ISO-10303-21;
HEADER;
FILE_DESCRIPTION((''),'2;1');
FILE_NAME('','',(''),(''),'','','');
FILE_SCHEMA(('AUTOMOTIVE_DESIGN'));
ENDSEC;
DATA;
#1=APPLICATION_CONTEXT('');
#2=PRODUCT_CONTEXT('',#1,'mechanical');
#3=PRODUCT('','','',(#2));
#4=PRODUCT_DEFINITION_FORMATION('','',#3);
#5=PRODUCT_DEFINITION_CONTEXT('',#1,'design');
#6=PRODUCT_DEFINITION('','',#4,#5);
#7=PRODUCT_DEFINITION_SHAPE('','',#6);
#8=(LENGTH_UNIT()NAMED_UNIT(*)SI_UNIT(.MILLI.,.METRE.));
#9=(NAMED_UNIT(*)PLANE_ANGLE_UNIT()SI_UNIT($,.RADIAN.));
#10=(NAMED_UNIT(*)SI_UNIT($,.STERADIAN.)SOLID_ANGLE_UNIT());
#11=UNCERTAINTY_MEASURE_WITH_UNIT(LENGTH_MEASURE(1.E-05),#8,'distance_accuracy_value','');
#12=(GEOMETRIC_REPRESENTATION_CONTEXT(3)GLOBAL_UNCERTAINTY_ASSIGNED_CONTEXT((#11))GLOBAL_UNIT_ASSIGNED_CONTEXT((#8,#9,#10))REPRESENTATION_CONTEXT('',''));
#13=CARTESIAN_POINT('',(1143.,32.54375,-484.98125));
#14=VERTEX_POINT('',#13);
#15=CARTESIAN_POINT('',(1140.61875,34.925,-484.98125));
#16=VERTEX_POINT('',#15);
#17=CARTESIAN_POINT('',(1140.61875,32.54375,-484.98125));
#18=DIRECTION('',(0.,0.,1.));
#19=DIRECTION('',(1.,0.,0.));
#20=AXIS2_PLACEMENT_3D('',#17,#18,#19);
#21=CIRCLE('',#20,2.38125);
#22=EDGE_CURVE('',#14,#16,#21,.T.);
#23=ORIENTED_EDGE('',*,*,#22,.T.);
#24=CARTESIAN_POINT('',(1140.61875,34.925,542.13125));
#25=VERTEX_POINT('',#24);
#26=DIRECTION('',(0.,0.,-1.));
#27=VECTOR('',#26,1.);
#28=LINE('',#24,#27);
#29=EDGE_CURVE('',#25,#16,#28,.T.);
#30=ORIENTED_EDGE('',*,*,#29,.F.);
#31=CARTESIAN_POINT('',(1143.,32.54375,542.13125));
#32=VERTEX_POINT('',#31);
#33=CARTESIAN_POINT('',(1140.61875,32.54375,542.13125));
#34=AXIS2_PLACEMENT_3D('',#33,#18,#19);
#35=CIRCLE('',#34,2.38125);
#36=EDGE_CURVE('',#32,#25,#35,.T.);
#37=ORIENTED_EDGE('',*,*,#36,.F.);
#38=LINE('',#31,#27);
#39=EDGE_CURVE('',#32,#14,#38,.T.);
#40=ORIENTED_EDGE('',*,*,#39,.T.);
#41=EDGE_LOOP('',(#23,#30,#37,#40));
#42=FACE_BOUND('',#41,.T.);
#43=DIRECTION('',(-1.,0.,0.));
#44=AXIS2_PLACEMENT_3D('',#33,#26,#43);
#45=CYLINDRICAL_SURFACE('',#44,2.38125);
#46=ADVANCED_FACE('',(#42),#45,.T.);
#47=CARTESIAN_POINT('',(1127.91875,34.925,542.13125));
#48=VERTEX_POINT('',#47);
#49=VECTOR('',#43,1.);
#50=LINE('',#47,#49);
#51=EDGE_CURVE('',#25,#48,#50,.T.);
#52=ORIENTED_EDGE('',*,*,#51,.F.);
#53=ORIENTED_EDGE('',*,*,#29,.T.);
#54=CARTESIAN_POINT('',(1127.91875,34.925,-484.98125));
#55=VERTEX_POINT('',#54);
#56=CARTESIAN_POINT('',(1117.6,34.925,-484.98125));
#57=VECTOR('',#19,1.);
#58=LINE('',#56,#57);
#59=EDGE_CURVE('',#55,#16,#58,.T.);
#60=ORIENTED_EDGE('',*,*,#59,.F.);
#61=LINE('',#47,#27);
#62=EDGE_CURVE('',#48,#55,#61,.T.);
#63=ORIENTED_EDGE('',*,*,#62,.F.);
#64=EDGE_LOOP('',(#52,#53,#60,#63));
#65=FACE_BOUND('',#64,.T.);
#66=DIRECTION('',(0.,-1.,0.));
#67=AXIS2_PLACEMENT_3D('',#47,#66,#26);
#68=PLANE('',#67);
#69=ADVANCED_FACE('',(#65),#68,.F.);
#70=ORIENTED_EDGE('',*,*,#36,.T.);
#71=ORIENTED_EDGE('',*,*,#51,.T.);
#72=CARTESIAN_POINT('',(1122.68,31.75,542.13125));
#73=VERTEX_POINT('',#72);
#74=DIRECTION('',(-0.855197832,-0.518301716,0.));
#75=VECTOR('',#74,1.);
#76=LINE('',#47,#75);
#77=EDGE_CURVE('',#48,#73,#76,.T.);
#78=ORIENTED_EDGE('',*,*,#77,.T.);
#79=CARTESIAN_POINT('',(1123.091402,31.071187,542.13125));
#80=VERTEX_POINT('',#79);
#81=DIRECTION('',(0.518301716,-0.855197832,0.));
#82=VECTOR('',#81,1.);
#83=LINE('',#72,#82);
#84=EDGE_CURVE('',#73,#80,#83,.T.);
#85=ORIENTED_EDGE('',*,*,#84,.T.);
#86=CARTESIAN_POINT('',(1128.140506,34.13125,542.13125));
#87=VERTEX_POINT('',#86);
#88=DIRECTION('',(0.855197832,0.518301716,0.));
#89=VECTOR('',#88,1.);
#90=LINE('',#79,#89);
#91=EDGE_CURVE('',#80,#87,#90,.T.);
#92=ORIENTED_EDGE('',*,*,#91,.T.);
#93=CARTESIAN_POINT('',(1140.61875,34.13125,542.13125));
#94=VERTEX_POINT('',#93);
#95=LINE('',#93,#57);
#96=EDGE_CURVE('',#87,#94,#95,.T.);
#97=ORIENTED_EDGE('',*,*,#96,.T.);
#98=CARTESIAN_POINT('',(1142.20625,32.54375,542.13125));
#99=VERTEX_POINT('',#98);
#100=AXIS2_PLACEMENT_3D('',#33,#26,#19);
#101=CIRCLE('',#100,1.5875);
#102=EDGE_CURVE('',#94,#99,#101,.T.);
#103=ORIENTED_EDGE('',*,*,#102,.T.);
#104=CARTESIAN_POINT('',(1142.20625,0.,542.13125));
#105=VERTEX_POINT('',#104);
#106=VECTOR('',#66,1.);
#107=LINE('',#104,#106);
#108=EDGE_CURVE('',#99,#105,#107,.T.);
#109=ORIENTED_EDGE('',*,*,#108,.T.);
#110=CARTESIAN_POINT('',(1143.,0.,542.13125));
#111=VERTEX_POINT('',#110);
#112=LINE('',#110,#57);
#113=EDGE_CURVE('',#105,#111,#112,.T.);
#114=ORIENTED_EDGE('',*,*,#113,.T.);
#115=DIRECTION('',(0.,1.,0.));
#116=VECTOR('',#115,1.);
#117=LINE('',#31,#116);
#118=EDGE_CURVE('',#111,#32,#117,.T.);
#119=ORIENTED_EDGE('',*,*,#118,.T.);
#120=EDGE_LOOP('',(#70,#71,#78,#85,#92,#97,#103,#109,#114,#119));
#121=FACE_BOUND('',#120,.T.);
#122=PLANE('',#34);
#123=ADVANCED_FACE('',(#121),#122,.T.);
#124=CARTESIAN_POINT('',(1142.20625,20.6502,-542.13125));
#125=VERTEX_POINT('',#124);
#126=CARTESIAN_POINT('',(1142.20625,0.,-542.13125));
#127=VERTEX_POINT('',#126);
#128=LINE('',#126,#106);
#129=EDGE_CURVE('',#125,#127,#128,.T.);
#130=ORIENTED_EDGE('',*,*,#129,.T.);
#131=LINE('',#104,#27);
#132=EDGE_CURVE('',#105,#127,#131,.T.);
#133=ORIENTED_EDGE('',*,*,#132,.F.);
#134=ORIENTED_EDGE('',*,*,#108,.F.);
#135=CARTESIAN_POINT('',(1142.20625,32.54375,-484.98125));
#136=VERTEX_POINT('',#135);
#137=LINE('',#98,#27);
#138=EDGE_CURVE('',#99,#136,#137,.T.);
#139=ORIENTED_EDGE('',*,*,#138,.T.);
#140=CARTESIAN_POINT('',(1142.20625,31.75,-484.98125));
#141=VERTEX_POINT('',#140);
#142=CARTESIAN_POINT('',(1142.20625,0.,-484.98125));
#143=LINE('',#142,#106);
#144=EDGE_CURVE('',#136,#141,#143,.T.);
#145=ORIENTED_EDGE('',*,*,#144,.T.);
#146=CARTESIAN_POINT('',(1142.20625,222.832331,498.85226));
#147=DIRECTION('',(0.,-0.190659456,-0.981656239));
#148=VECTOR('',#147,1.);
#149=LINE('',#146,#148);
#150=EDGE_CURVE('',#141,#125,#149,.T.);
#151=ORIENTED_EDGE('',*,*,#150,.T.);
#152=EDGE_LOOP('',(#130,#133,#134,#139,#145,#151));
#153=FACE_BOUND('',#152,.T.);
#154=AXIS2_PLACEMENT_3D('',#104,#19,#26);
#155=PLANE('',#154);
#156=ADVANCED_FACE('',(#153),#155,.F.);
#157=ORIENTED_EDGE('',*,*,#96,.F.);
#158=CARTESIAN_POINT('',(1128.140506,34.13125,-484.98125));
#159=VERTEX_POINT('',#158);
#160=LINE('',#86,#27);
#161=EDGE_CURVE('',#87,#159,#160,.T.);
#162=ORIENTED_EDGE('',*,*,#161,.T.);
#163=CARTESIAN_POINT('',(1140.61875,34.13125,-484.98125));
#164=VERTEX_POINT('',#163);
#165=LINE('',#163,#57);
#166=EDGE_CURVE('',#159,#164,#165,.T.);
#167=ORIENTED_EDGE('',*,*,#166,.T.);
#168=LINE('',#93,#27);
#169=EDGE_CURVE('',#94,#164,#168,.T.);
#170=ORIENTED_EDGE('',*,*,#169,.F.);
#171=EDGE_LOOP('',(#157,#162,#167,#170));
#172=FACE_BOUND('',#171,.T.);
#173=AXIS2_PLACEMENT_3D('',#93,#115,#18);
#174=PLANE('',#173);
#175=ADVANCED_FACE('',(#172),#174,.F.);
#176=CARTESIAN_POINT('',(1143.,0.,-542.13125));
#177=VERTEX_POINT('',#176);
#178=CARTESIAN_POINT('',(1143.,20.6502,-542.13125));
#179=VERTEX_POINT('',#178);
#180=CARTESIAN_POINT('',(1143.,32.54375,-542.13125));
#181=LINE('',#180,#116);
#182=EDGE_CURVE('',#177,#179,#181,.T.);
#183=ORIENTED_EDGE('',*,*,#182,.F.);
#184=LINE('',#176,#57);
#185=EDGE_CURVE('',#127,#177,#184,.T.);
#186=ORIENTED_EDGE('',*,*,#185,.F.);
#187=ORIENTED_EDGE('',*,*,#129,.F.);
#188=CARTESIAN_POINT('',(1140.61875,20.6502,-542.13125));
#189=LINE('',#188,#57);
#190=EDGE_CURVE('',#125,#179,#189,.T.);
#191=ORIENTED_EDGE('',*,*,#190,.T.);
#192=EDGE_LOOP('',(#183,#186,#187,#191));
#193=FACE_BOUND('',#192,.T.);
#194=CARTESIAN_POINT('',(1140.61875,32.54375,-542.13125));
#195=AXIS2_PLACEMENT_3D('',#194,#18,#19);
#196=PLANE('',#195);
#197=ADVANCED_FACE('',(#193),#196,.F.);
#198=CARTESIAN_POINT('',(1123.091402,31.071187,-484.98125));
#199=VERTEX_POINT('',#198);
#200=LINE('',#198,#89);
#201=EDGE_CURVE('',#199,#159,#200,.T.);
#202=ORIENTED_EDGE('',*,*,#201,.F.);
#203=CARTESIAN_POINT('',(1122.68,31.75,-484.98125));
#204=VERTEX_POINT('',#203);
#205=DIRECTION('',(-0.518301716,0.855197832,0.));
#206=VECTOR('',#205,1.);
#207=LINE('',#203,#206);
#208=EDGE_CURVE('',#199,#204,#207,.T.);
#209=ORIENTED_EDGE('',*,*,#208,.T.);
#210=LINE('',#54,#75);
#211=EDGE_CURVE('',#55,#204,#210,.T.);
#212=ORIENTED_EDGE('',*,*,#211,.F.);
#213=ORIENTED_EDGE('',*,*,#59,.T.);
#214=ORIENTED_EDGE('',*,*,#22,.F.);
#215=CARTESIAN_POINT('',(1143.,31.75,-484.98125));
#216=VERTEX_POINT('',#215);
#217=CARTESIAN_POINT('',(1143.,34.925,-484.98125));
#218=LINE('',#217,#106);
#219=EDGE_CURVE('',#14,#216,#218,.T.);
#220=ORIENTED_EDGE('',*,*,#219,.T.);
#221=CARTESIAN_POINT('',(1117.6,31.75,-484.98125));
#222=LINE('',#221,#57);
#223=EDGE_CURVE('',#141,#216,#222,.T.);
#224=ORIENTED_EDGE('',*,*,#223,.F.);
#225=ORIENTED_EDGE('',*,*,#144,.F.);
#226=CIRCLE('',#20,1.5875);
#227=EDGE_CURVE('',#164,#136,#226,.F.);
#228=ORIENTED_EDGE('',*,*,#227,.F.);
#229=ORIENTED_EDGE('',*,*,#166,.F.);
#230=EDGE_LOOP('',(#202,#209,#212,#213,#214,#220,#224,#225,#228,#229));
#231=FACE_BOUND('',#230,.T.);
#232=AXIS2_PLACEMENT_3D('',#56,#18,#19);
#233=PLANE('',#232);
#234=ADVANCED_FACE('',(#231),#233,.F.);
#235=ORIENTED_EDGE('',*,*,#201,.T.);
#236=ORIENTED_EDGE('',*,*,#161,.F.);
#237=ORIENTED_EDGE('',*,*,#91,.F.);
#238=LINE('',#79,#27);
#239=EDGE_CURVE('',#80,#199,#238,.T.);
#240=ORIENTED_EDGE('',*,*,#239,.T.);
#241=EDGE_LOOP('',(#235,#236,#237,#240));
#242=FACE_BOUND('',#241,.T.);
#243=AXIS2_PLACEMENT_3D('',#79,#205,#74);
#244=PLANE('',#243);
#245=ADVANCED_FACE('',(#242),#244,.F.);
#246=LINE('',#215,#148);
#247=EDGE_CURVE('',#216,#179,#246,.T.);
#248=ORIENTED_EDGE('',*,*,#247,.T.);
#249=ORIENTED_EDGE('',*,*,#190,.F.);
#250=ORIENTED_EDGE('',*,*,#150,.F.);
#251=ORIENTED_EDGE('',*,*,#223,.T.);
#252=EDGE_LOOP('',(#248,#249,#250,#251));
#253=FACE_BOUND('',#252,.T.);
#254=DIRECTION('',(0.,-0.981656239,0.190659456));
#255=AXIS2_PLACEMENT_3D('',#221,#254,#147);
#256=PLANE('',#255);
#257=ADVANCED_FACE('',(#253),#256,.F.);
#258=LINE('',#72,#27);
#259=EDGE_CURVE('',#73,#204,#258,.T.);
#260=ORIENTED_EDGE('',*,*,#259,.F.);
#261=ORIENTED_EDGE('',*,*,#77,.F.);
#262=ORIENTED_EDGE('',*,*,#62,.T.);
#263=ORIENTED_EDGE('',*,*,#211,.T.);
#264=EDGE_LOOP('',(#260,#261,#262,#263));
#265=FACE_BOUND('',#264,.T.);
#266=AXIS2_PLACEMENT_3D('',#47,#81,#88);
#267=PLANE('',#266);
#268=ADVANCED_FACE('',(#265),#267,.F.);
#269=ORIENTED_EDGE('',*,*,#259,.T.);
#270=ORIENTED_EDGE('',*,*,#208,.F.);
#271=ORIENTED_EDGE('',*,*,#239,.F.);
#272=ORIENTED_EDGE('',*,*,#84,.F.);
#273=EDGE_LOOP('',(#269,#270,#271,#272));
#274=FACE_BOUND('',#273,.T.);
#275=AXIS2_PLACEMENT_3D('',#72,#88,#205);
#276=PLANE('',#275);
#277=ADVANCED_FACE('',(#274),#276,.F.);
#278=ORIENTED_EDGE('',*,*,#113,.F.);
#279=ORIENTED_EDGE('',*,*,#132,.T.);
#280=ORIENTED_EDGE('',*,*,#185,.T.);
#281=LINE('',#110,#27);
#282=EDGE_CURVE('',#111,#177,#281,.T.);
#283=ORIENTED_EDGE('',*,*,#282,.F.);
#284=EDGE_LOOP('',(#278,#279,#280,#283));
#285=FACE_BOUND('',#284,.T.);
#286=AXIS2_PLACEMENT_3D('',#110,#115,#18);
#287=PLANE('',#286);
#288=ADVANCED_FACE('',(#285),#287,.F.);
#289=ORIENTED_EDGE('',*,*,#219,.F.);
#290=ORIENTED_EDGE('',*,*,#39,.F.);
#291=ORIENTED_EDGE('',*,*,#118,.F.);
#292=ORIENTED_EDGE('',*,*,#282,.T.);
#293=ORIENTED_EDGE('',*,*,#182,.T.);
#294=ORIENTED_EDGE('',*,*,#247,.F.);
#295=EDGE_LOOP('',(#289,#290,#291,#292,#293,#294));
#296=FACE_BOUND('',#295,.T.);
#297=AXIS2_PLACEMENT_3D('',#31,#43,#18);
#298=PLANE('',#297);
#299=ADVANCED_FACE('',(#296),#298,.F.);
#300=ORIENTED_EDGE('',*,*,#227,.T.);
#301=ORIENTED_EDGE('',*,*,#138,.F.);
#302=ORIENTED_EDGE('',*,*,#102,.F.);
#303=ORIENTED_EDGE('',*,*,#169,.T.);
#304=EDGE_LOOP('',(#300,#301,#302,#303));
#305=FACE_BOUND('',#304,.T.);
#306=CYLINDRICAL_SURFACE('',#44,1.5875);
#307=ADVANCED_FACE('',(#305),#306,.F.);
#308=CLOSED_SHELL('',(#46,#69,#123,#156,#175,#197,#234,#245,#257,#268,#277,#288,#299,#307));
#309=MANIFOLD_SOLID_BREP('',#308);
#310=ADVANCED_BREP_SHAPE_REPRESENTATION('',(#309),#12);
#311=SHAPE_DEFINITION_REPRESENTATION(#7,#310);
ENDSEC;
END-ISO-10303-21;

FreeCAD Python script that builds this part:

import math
import FreeCAD as App
import Part
import Sketcher

V = App.Vector
Q = App.Units.Quantity


def add_polygon(sketch, points):
    """Adds a closed chain of lines whose ends are joined by coincident constraints."""
    first, n = sketch.GeometryCount, len(points)
    for a, b in zip(points, points[1:] + points[:1]):
        sketch.addGeometry(Part.LineSegment(App.Vector(*a, 0), App.Vector(*b, 0)), False)
    for i in range(n):
        sketch.addConstraint(Sketcher.Constraint("Coincident", first + i, 2, first + (i + 1) % n, 1))

doc = App.newDocument("Part")
params = doc.addObject("Spreadsheet::Sheet", "Params")
for row, (alias, value) in enumerate([
    ("sketch1_width", "0.5 in"),
    ("sketch1_radius", "0.09375 in"),
    ("sketch1_radius2", "0.0625 in"),
    ("sketch1_height", "1.28125 in"),
    ("sketch1_length", "0.03125 in"),
    ("pad1_length", "42.6875 in"),
    ("sketch2_height", "2.25 in"),
    ("sketch2_width", "0.125 in"),
    ("sketch2_width2", "0.562 in"),
    ("pocket1_length", "1 in"),
    ("pocket2_length", "1 in"),
], start=1):
    params.set(f"A{row}", alias)
    params.set(f"B{row}", "=" + value)
    params.setAlias(f"B{row}", alias)

body = doc.addObject("PartDesign::Body", "Body")

sketch1 = body.newObject("Sketcher::SketchObject", "Sketch")
sketch1.AttachmentSupport = (doc.getObject("XY_Plane"), [""])
sketch1.MapMode = "FlatFace"
sketch1.addGeometry(Part.LineSegment(V(1142.2, 0, 0), V(1143, 0, 0)), False)
sketch1.addGeometry(Part.LineSegment(V(1143, 0, 0), V(1143, 32.5, 0)), False)
sketch1.addGeometry(Part.ArcOfCircle(Part.Circle(V(1140.6, 32.5, 0), V(0, 0, 1), 2.4), math.radians(0), math.radians(90)), False)
sketch1.addGeometry(Part.LineSegment(V(1140.6, 34.9, 0), V(1127.9, 34.9, 0)), False)
sketch1.addGeometry(Part.LineSegment(V(1127.9, 34.9, 0), V(1122.7, 31.8, 0)), False)
sketch1.addGeometry(Part.LineSegment(V(1122.7, 31.8, 0), V(1123.1, 31.1, 0)), False)
sketch1.addGeometry(Part.LineSegment(V(1123.1, 31.1, 0), V(1128.1, 34.1, 0)), False)
sketch1.addGeometry(Part.LineSegment(V(1128.1, 34.1, 0), V(1140.6, 34.1, 0)), False)
sketch1.addGeometry(Part.ArcOfCircle(Part.Circle(V(1140.6, 32.5, 0), V(0, 0, 1), 1.6), math.radians(0), math.radians(90)), False)
sketch1.addGeometry(Part.LineSegment(V(1142.2, 32.5, 0), V(1142.2, 0, 0)), False)
sketch1.addConstraint(Sketcher.Constraint("Coincident", 0, 2, 1, 1))
sketch1.addConstraint(Sketcher.Constraint("Tangent", 1, 2, 2, 1))
sketch1.addConstraint(Sketcher.Constraint("Tangent", 2, 2, 3, 1))
sketch1.addConstraint(Sketcher.Constraint("Coincident", 3, 2, 4, 1))
sketch1.addConstraint(Sketcher.Constraint("Coincident", 4, 2, 5, 1))
sketch1.addConstraint(Sketcher.Constraint("Coincident", 5, 2, 6, 1))
sketch1.addConstraint(Sketcher.Constraint("Coincident", 6, 2, 7, 1))
sketch1.addConstraint(Sketcher.Constraint("Tangent", 7, 2, 8, 2))
sketch1.addConstraint(Sketcher.Constraint("Tangent", 8, 1, 9, 1))
sketch1.addConstraint(Sketcher.Constraint("Coincident", 9, 2, 0, 1))
sketch1.addConstraint(Sketcher.Constraint("Horizontal", 0))
sketch1.addConstraint(Sketcher.Constraint("Vertical", 1))
sketch1.addConstraint(Sketcher.Constraint("Horizontal", 3))
sketch1.addConstraint(Sketcher.Constraint("Horizontal", 7))
sketch1.addConstraint(Sketcher.Constraint("Vertical", 9))
sketch1.addConstraint(Sketcher.Constraint("Coincident", 8, 3, 2, 3))
sketch1.addConstraint(Sketcher.Constraint("PointOnObject", 0, 2, -1))
sketch1.addConstraint(Sketcher.Constraint("Perpendicular", 4, 5))
sketch1.addConstraint(Sketcher.Constraint("Perpendicular", 5, 6))
sketch1.addConstraint(Sketcher.Constraint("DistanceX", 3, 2, 3, 1, Q("0.5 in")))
sketch1.addConstraint(Sketcher.Constraint("DistanceX", -1, 1, 0, 2, Q("45 in")))
sketch1.addConstraint(Sketcher.Constraint("Radius", 2, Q("0.09375 in")))
sketch1.addConstraint(Sketcher.Constraint("Radius", 8, Q("0.0625 in")))
sketch1.addConstraint(Sketcher.Constraint("DistanceX", -1, 1, 4, 2, Q("44.2 in")))
sketch1.addConstraint(Sketcher.Constraint("DistanceY", 1, 1, 1, 2, Q("1.28125 in")))
sketch1.addConstraint(Sketcher.Constraint("DistanceY", -1, 1, 4, 2, Q("1.25 in")))
sketch1.addConstraint(Sketcher.Constraint("Distance", 5, Q("0.03125 in")))
sketch1.setExpression("Constraints[19]", "Params.sketch1_width")
sketch1.setExpression("Constraints[21]", "Params.sketch1_radius")
sketch1.setExpression("Constraints[22]", "Params.sketch1_radius2")
sketch1.setExpression("Constraints[24]", "Params.sketch1_height")
sketch1.setExpression("Constraints[26]", "Params.sketch1_length")
pad1 = body.newObject("PartDesign::Pad", "Pad")
pad1.Profile = sketch1
pad1.setExpression("Length", "Params.pad1_length")
pad1.Midplane = True

sketch2 = body.newObject("Sketcher::SketchObject", "Sketch001")
sketch2.AttachmentSupport = (doc.getObject("YZ_Plane"), [""])
sketch2.MapMode = "FlatFace"
sketch2.AttachmentOffset = App.Placement(V(0, 0, 45 * 25.4), App.Rotation())
add_polygon(sketch2, [(34.9, -542.1), (34.9, -485), (31.8, -485), (20.7, -542.1)])
sketch2.addConstraint(Sketcher.Constraint("Vertical", 0))
sketch2.addConstraint(Sketcher.Constraint("Horizontal", 1))
sketch2.addConstraint(Sketcher.Constraint("Horizontal", 3))
sketch2.addConstraint(Sketcher.Constraint("DistanceY", 0, 1, 0, 2, Q("2.25 in")))
sketch2.addConstraint(Sketcher.Constraint("DistanceX", 1, 2, 1, 1, Q("0.125 in")))
sketch2.addConstraint(Sketcher.Constraint("DistanceX", 3, 1, 3, 2, Q("0.562 in")))
sketch2.addConstraint(Sketcher.Constraint("DistanceX", -1, 1, 1, 2, Q("1.25 in")))
sketch2.addConstraint(Sketcher.Constraint("DistanceY", 0, 2, -1, 1, Q("19.09375 in")))
sketch2.setExpression("Constraints[7]", "Params.sketch2_height")
sketch2.setExpression("Constraints[8]", "Params.sketch2_width")
sketch2.setExpression("Constraints[9]", "Params.sketch2_width2")
pocket1 = body.newObject("PartDesign::Pocket", "Pocket")
pocket1.Profile = sketch2
pocket1.setExpression("Length", "Params.pocket1_length")

sketch3 = body.newObject("Sketcher::SketchObject", "Sketch002")
sketch3.AttachmentSupport = (doc.getObject("XY_Plane"), [""])
sketch3.MapMode = "FlatFace"
sketch3.AttachmentOffset = App.Placement(V(0, 0, -19.09375 * 25.4), App.Rotation())
add_polygon(sketch3, [(1122.7, 31.8), (1127.9, 34.9), (1128.1, 34.1), (1123.4, 30.5)])
sketch3.addConstraint(Sketcher.Constraint("Perpendicular", 0, 3))
sketch3.addConstraint(Sketcher.Constraint("DistanceX", -1, 1, 3, 2, Q("44.2 in")))
sketch3.addConstraint(Sketcher.Constraint("DistanceY", -1, 1, 3, 2, Q("1.25 in")))
sketch3.addConstraint(Sketcher.Constraint("DistanceX", -1, 1, 0, 2, Q("44.40625 in")))
sketch3.addConstraint(Sketcher.Constraint("DistanceY", -1, 1, 0, 2, Q("1.375 in")))
sketch3.addConstraint(Sketcher.Constraint("DistanceY", -1, 1, 1, 2, Q("1.34375 in")))
sketch3.addConstraint(Sketcher.Constraint("Distance", 2, Q("5.938051 mm")))
sketch3.addConstraint(Sketcher.Constraint("Distance", 1, Q("0.824145 mm")))
pocket2 = body.newObject("PartDesign::Pocket", "Pocket001")
pocket2.Profile = sketch3
pocket2.setExpression("Length", "Params.pocket2_length")

doc.recompute()
